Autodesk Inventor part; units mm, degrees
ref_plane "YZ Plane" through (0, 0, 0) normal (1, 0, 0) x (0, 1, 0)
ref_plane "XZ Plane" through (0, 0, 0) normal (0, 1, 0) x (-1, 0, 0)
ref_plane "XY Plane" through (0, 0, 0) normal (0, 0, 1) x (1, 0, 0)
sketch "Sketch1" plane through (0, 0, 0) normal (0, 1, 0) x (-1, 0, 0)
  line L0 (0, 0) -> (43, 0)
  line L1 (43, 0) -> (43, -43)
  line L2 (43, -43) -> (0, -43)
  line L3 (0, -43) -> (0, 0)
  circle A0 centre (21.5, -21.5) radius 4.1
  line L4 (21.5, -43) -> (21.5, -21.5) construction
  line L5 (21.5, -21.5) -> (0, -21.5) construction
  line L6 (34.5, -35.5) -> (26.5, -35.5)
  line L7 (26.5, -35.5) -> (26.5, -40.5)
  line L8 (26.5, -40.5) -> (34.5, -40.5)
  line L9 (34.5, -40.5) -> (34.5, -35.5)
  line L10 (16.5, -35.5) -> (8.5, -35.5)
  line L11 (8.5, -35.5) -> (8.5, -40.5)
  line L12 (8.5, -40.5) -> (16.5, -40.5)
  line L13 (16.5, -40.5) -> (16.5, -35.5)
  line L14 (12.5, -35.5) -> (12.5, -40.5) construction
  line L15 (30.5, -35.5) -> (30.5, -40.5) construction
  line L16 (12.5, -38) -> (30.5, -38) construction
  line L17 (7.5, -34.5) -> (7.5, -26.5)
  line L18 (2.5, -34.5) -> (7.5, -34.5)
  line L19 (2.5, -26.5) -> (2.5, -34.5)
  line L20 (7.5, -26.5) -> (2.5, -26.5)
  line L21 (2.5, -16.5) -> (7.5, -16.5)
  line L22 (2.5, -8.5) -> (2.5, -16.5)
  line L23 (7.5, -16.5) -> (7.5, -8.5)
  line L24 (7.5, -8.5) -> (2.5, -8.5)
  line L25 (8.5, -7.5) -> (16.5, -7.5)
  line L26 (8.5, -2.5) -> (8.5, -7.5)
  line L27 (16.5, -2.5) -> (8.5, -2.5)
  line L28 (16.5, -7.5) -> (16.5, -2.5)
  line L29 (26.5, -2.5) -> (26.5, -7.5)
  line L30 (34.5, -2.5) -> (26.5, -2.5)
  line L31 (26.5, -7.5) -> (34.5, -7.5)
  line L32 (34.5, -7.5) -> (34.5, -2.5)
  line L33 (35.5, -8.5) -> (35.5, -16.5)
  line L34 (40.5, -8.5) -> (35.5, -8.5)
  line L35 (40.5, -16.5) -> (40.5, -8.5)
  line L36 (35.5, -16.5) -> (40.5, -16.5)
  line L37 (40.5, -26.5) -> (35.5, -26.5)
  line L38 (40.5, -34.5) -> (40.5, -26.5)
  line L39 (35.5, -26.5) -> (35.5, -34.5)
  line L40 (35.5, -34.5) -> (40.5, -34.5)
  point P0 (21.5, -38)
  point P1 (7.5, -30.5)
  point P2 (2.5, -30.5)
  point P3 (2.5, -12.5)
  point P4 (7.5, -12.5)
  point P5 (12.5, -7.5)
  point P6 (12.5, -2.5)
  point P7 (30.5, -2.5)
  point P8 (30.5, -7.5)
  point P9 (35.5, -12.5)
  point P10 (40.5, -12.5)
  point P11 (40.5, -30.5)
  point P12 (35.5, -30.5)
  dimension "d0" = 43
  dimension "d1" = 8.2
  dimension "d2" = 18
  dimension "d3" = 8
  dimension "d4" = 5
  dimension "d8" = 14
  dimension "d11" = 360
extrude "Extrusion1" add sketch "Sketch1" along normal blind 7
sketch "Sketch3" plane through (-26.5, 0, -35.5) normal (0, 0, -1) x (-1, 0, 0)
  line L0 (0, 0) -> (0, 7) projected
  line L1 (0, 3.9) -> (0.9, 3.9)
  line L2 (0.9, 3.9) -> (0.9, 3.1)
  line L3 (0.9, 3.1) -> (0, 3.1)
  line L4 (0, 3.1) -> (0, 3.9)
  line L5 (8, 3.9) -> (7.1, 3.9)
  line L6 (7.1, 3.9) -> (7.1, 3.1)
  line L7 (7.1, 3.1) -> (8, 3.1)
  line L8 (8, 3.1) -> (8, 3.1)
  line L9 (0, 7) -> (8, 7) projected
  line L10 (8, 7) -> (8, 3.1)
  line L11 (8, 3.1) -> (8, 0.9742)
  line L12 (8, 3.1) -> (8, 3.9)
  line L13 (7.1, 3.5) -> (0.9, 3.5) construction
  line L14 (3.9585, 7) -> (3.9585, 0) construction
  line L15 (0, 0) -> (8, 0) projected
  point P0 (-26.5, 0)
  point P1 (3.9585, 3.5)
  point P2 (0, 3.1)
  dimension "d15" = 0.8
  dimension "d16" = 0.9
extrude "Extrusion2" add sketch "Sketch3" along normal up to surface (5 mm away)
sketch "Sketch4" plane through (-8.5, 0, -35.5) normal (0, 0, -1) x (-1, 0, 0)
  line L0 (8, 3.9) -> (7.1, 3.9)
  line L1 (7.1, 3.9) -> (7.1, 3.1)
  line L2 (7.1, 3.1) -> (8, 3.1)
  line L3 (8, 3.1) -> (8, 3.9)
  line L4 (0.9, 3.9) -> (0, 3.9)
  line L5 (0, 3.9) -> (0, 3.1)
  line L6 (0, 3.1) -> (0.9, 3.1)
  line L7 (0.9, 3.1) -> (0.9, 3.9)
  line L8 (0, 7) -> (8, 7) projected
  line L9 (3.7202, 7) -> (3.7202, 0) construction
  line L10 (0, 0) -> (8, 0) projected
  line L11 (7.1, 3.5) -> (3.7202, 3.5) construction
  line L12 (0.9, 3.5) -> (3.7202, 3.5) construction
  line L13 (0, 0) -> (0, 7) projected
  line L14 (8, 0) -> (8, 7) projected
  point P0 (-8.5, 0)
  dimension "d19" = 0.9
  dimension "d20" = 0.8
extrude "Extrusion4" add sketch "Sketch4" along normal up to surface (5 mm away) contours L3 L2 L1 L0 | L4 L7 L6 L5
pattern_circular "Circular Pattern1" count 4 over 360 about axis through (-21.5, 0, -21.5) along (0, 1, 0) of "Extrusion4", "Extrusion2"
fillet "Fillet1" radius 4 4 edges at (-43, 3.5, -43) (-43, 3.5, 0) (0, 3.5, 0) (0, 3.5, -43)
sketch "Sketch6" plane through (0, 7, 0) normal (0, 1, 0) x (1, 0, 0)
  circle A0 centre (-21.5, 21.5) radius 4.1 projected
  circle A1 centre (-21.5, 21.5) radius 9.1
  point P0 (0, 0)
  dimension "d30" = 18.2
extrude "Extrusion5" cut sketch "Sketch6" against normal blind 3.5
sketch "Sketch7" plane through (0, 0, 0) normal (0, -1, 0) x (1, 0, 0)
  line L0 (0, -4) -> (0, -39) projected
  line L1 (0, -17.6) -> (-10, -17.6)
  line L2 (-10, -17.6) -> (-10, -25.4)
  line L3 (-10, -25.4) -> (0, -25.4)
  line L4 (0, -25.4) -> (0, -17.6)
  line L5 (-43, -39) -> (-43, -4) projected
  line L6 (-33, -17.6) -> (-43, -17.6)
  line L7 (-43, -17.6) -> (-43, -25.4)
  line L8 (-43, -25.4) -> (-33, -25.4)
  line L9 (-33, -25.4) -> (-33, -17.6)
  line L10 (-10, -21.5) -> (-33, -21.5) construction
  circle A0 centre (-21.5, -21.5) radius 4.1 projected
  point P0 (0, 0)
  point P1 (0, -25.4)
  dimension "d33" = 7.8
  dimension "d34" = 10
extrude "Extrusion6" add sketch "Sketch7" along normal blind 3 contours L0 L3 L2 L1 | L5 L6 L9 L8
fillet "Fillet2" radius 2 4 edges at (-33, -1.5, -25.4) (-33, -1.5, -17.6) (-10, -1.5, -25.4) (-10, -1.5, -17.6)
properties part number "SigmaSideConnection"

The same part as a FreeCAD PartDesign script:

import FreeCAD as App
import Part
import Sketcher

V = App.Vector


def edges_at(feature, points):
    """Names of the edges that pass closest to the given points."""
    edges = feature.Shape.Edges
    near = lambda p: min(range(len(edges)), key=lambda i: edges[i].distToShape(Part.Vertex(*p))[0])
    return sorted({f"Edge{near(p) + 1}" for p in points})


def add_polygon(sketch, points):
    """Adds a closed chain of lines whose ends are joined by coincident constraints."""
    first, n = sketch.GeometryCount, len(points)
    for a, b in zip(points, points[1:] + points[:1]):
        sketch.addGeometry(Part.LineSegment(App.Vector(*a, 0), App.Vector(*b, 0)), False)
    for i in range(n):
        sketch.addConstraint(Sketcher.Constraint("Coincident", first + i, 2, first + (i + 1) % n, 1))

doc = App.newDocument("Part")
body = doc.addObject("PartDesign::Body", "Body")

# Sketch on XZ plane
sketch1 = doc.addObject("Sketcher::SketchObject", "Sketch")
body.addObject(sketch1)
sketch1.AttachmentSupport = (doc.XZ_Plane, [""])
sketch1.MapMode = "FlatFace"
add_polygon(sketch1, [(-43, 0), (0, 0), (0, -43), (-43, -43)])  # lines 0-3
add_polygon(sketch1, [(-8.5, -35.5), (-16.5, -35.5), (-16.5, -40.5), (-8.5, -40.5)])  # lines 4-7
add_polygon(sketch1, [(-7.5, -26.5), (-7.5, -34.5), (-2.5, -34.5), (-2.5, -26.5)])  # lines 8-11
add_polygon(sketch1, [(-26.5, -35.5), (-34.5, -35.5), (-34.5, -40.5), (-26.5, -40.5)])  # lines 12-15
add_polygon(sketch1, [(-35.5, -26.5), (-40.5, -26.5), (-40.5, -34.5), (-35.5, -34.5)])  # lines 16-19
add_polygon(sketch1, [(-7.5, -16.5), (-2.5, -16.5), (-2.5, -8.5), (-7.5, -8.5)])  # lines 20-23
add_polygon(sketch1, [(-16.5, -7.5), (-8.5, -7.5), (-8.5, -2.5), (-16.5, -2.5)])  # lines 24-27
sketch1.addGeometry(Part.Circle(V(-21.5, -21.5, 0), V(0, 0, 1), 4.1), False)  # 28
add_polygon(sketch1, [(-35.5, -16.5), (-35.5, -8.5), (-40.5, -8.5), (-40.5, -16.5)])  # lines 29-32
add_polygon(sketch1, [(-26.5, -7.5), (-26.5, -2.5), (-34.5, -2.5), (-34.5, -7.5)])  # lines 33-36
sketch1.addConstraint([
    Sketcher.Constraint("Horizontal", 0),
    Sketcher.Constraint("Vertical", 1),
    Sketcher.Constraint("Horizontal", 2),
    Sketcher.Constraint("Vertical", 3),
    Sketcher.Constraint("Horizontal", 4),
    Sketcher.Constraint("Vertical", 5),
    Sketcher.Constraint("Horizontal", 6),
    Sketcher.Constraint("Vertical", 7),
    Sketcher.Constraint("Vertical", 8),
    Sketcher.Constraint("Horizontal", 9),
    Sketcher.Constraint("Vertical", 10),
    Sketcher.Constraint("Horizontal", 11),
    Sketcher.Constraint("Horizontal", 12),
    Sketcher.Constraint("Vertical", 13),
    Sketcher.Constraint("Horizontal", 14),
    Sketcher.Constraint("Vertical", 15),
    Sketcher.Constraint("Horizontal", 16),
    Sketcher.Constraint("Vertical", 17),
    Sketcher.Constraint("Horizontal", 18),
    Sketcher.Constraint("Vertical", 19),
    Sketcher.Constraint("Horizontal", 20),
    Sketcher.Constraint("Vertical", 21),
    Sketcher.Constraint("Horizontal", 22),
    Sketcher.Constraint("Vertical", 23),
    Sketcher.Constraint("Horizontal", 24),
    Sketcher.Constraint("Vertical", 25),
    Sketcher.Constraint("Horizontal", 26),
    Sketcher.Constraint("Vertical", 27),
    Sketcher.Constraint("Vertical", 29),
    Sketcher.Constraint("Horizontal", 30),
    Sketcher.Constraint("Vertical", 31),
    Sketcher.Constraint("Horizontal", 32),
    Sketcher.Constraint("Vertical", 33),
    Sketcher.Constraint("Horizontal", 34),
    Sketcher.Constraint("Vertical", 35),
    Sketcher.Constraint("Horizontal", 36),
    Sketcher.Constraint("Coincident", 0, 2, -1, 1),
    Sketcher.Constraint("Horizontal", 7, 2, 12, 2),
    Sketcher.Constraint("Horizontal", 6, 2, 13, 2),
    Sketcher.Constraint("Horizontal", 11, 2, 16, 2),
    Sketcher.Constraint("Horizontal", 9, 2, 17, 2),
    Sketcher.Constraint("Horizontal", 22, 2, 29, 2),
    Sketcher.Constraint("Horizontal", 23, 2, 31, 2),
    Sketcher.Constraint("Horizontal", 26, 2, 33, 2),
    Sketcher.Constraint("Horizontal", 27, 2, 35, 2),
    Sketcher.Constraint("Vertical", 10, 2, 20, 2),
    Sketcher.Constraint("Vertical", 11, 2, 22, 2),
    Sketcher.Constraint("Vertical", 7, 2, 24, 2),
    Sketcher.Constraint("Vertical", 5, 2, 26, 2),
    Sketcher.Constraint("Vertical", 19, 2, 29, 2),
    Sketcher.Constraint("Vertical", 17, 2, 30, 2),
    Sketcher.Constraint("Vertical", 15, 2, 33, 2),
    Sketcher.Constraint("Vertical", 13, 2, 34, 2),
    Sketcher.Constraint("Equal", 6, 12),
    Sketcher.Constraint("Equal", 11, 16),
    Sketcher.Constraint("Equal", 2, 1),
    Sketcher.Constraint("Equal", 32, 5),
    Sketcher.Constraint("Equal", 36, 8),
    Sketcher.Constraint("Equal", 19, 21),
    Sketcher.Constraint("Equal", 15, 25),
    Sketcher.Constraint("Diameter", 28, 8.2),
    Sketcher.Constraint("DistanceX", 0, 1, 0, 2, 43.0),
    Sketcher.Constraint("DistanceX", 4, 2, 4, 1, 8.0),
    Sketcher.Constraint("DistanceX", 9, 1, 9, 2, 5.0),
    Sketcher.Constraint("DistanceX", 28, 3, 4, 2, 5.0),
    Sketcher.Constraint("DistanceY", 4, 2, 28, 3, 14.0),
    Sketcher.Constraint("DistanceX", 4, 2, 9, 2, 14.0),
    Sketcher.Constraint("DistanceY", 6, 2, 10, 2, 14.0),
    Sketcher.Constraint("DistanceX", 12, 2, 4, 2, 18.0),
    Sketcher.Constraint("DistanceX", 16, 2, 15, 2, 14.0),
    Sketcher.Constraint("DistanceY", 9, 2, 20, 2, 18.0),
    Sketcher.Constraint("DistanceY", 23, 2, 25, 2, 14.0),
    Sketcher.Constraint("DistanceX", 28, 3, -1, 1, 21.5),
    Sketcher.Constraint("DistanceY", 28, 3, -1, 1, 21.5),
])
pad1 = doc.addObject("PartDesign::Pad", "Pad")
body.addObject(pad1)
pad1.Profile = sketch1
pad1.Length = 7
pad1.Reversed = True

# Sketch on XY plane
sketch2 = doc.addObject("Sketcher::SketchObject", "Sketch001")
body.addObject(sketch2)
sketch2.AttachmentSupport = (doc.XY_Plane, [""])
sketch2.MapMode = "FlatFace"
sketch2.AttachmentOffset = App.Placement(V(0, 0, -35.5), App.Rotation())
add_polygon(sketch2, [(-34.5, 3.1), (-34.5, 3.9), (-33.6, 3.9), (-33.6, 3.1)])  # lines 0-3
add_polygon(sketch2, [(-26.5, 3.9), (-26.5, 3.1), (-27.4, 3.1), (-27.4, 3.9)])  # lines 4-7
sketch2.addConstraint([
    Sketcher.Constraint("Vertical", 0),
    Sketcher.Constraint("Horizontal", 1),
    Sketcher.Constraint("Vertical", 2),
    Sketcher.Constraint("Horizontal", 3),
    Sketcher.Constraint("Vertical", 4),
    Sketcher.Constraint("Horizontal", 5),
    Sketcher.Constraint("Vertical", 6),
    Sketcher.Constraint("Horizontal", 7),
    Sketcher.Constraint("Horizontal", 3, 2, 4, 2),
    Sketcher.Constraint("Horizontal", 1, 2, 6, 2),
    Sketcher.Constraint("Equal", 3, 5),
    Sketcher.Constraint("DistanceX", 1, 1, 1, 2, 0.9),
    Sketcher.Constraint("DistanceY", 0, 1, 0, 2, 0.8),
    Sketcher.Constraint("DistanceX", 3, 2, 4, 2, 8.0),
    Sketcher.Constraint("DistanceX", 0, 2, -1, 1, 34.5),
    Sketcher.Constraint("DistanceY", -1, 1, 0, 2, 3.9),
])
pad2 = doc.addObject("PartDesign::Pad", "Pad001")
body.addObject(pad2)
pad2.Profile = sketch2
pad2.Length = 5
pad2.Reversed = True

# Sketch on XY plane
sketch3 = doc.addObject("Sketcher::SketchObject", "Sketch002")
body.addObject(sketch3)
sketch3.AttachmentSupport = (doc.XY_Plane, [""])
sketch3.MapMode = "FlatFace"
sketch3.AttachmentOffset = App.Placement(V(0, 0, -35.5), App.Rotation())
add_polygon(sketch3, [(-16.5, 3.1), (-16.5, 3.9), (-15.6, 3.9), (-15.6, 3.1)])  # lines 0-3
add_polygon(sketch3, [(-9.4, 3.9), (-8.5, 3.9), (-8.5, 3.1), (-9.4, 3.1)])  # lines 4-7
sketch3.addConstraint([
    Sketcher.Constraint("Vertical", 0),
    Sketcher.Constraint("Horizontal", 1),
    Sketcher.Constraint("Vertical", 2),
    Sketcher.Constraint("Horizontal", 3),
    Sketcher.Constraint("Horizontal", 4),
    Sketcher.Constraint("Vertical", 5),
    Sketcher.Constraint("Horizontal", 6),
    Sketcher.Constraint("Vertical", 7),
    Sketcher.Constraint("Horizontal", 1, 2, 4, 2),
    Sketcher.Constraint("Horizontal", 3, 2, 5, 2),
    Sketcher.Constraint("Equal", 3, 4),
    Sketcher.Constraint("DistanceX", 1, 1, 1, 2, 0.9),
    Sketcher.Constraint("DistanceY", 0, 1, 0, 2, 0.8),
    Sketcher.Constraint("DistanceX", 0, 2, 4, 2, 8.0),
    Sketcher.Constraint("DistanceX", 0, 2, -1, 1, 16.5),
    Sketcher.Constraint("DistanceY", -1, 1, 0, 2, 3.9),
])
pad3 = doc.addObject("PartDesign::Pad", "Pad002")
body.addObject(pad3)
pad3.Profile = sketch3
pad3.Length = 5
pad3.Reversed = True
doc.recompute()

datumline = doc.addObject("PartDesign::Line", "DatumLine")
body.addObject(datumline)
datumline.Placement = App.Placement(V(-21.5, 0, -21.5), App.Rotation(V(0, 0, 1), V(0, 1, 0)))
polarpattern = doc.addObject("PartDesign::PolarPattern", "PolarPattern")
body.addObject(polarpattern)
polarpattern.Originals = [pad3, pad2]
polarpattern.Axis = (datumline, [""])
polarpattern.Angle = 360
polarpattern.Occurrences = 4
body.Tip = polarpattern
doc.recompute()

fillet = doc.addObject("PartDesign::Fillet", "Fillet")
body.addObject(fillet)
fillet.Base = (polarpattern, edges_at(polarpattern, [
    (-43, 3.5, -43),
    (-43, 3.5, 0),
    (0, 3.5, 0),
    (0, 3.5, -43),
]))
fillet.Radius = 4

# Sketch on XZ plane
sketch4 = doc.addObject("Sketcher::SketchObject", "Sketch003")
body.addObject(sketch4)
sketch4.AttachmentSupport = (doc.XZ_Plane, [""])
sketch4.MapMode = "FlatFace"
sketch4.AttachmentOffset = App.Placement(V(0, 0, -7), App.Rotation())
sketch4.addGeometry([
    Part.Circle(V(-21.5, -21.5, 0), V(0, 0, 1), 9.1),
    Part.Circle(V(-21.5, -21.5, 0), V(0, 0, 1), 4.1),
], False)
sketch4.addConstraint([
    Sketcher.Constraint("Coincident", 1, 3, 0, 3),
    Sketcher.Constraint("Diameter", 0, 18.2),
    Sketcher.Constraint("Diameter", 1, 8.2),
    Sketcher.Constraint("DistanceX", 0, 3, -1, 1, 21.5),
    Sketcher.Constraint("DistanceY", 0, 3, -1, 1, 21.5),
])
pocket1 = doc.addObject("PartDesign::Pocket", "Pocket")
body.addObject(pocket1)
pocket1.Profile = sketch4
pocket1.Length = 3.5
pocket1.Reversed = True

# Sketch on XZ plane
sketch5 = doc.addObject("Sketcher::SketchObject", "Sketch004")
body.addObject(sketch5)
sketch5.AttachmentSupport = (doc.XZ_Plane, [""])
sketch5.MapMode = "FlatFace"
add_polygon(sketch5, [(0, -25), (0, -18), (-10, -18), (-10, -25)])  # lines 0-3
add_polygon(sketch5, [(-43, -18), (-43, -25), (-33, -25), (-33, -18)])  # lines 4-7
sketch5.addConstraint([
    Sketcher.Constraint("Vertical", 0),
    Sketcher.Constraint("Horizontal", 1),
    Sketcher.Constraint("Vertical", 2),
    Sketcher.Constraint("Horizontal", 3),
    Sketcher.Constraint("Vertical", 4),
    Sketcher.Constraint("Horizontal", 5),
    Sketcher.Constraint("Vertical", 6),
    Sketcher.Constraint("Horizontal", 7),
    Sketcher.Constraint("PointOnObject", 0, 2, -2),
    Sketcher.Constraint("Horizontal", 3, 2, 4, 2),
    Sketcher.Constraint("Horizontal", 1, 2, 6, 2),
    Sketcher.Constraint("Equal", 3, 5),
    Sketcher.Constraint("DistanceX", 1, 2, 1, 1, 10.0),
    Sketcher.Constraint("DistanceY", 0, 1, 0, 2, 7.8),
    Sketcher.Constraint("DistanceX", 4, 2, -1, 1, 43.0),
    Sketcher.Constraint("DistanceY", 0, 2, -1, 1, 17.6),
])
pad4 = doc.addObject("PartDesign::Pad", "Pad003")
body.addObject(pad4)
pad4.Profile = sketch5
pad4.Length = 3
doc.recompute()

fillet2 = doc.addObject("PartDesign::Fillet", "Fillet001")
body.addObject(fillet2)
fillet2.Base = (pad4, edges_at(pad4, [
    (-33, -1.5, -25.4),
    (-33, -1.5, -17.6),
    (-10, -1.5, -25.4),
    (-10, -1.5, -17.6),
]))
fillet2.Radius = 2

doc.recompute()
